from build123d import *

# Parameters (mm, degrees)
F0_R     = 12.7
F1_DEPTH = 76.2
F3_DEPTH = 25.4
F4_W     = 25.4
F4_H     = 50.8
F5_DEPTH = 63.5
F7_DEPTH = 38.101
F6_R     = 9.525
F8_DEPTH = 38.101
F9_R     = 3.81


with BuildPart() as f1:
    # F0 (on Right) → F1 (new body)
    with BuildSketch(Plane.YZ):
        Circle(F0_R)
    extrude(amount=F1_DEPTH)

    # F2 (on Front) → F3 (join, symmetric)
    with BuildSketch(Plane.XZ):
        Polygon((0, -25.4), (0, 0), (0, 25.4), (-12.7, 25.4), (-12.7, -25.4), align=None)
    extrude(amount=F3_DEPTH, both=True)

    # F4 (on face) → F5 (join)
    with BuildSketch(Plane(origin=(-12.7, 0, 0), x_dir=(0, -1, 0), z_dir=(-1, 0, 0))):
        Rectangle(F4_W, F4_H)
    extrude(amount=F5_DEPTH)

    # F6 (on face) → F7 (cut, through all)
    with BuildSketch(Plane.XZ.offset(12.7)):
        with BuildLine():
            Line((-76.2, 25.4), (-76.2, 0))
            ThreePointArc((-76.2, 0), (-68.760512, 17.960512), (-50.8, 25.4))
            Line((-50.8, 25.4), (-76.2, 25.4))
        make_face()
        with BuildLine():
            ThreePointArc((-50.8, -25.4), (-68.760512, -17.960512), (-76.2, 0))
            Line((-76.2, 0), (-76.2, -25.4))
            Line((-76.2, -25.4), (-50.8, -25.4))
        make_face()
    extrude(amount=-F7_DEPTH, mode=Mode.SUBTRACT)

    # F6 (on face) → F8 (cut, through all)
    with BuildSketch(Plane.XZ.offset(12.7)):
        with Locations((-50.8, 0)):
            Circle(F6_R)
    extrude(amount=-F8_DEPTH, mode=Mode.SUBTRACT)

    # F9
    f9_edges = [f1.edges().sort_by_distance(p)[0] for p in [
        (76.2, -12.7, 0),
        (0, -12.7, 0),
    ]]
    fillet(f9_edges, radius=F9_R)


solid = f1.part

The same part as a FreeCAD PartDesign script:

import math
import FreeCAD as App
import Part
import Sketcher
Q = App.Units.Quantity


def edges_at(feature, points):
    """Names of the edges that pass closest to the given points."""
    edges = feature.Shape.Edges
    near = lambda p: min(range(len(edges)), key=lambda i: edges[i].distToShape(Part.Vertex(*p))[0])
    return sorted({f"Edge{near(p) + 1}" for p in points})


def add_polygon(sketch, points):
    """Adds a closed chain of lines whose ends are joined by coincident constraints."""
    first, n = sketch.GeometryCount, len(points)
    for a, b in zip(points, points[1:] + points[:1]):
        sketch.addGeometry(Part.LineSegment(App.Vector(*a, 0), App.Vector(*b, 0)), False)
    for i in range(n):
        sketch.addConstraint(Sketcher.Constraint("Coincident", first + i, 2, first + (i + 1) % n, 1))

doc = App.newDocument("Part")
body = doc.addObject("PartDesign::Body", "Body")

sketch1 = body.newObject("Sketcher::SketchObject", "Sketch")
sketch1.AttachmentSupport = (doc.getObject("YZ_Plane"), [""])
sketch1.MapMode = "FlatFace"
sketch1.addGeometry(Part.Circle(App.Vector(0, 0, 0), App.Vector(0, 0, 1), 12.7), False)
sketch1.addConstraint([
    Sketcher.Constraint("Coincident", 0, 3, -1, 1),
    Sketcher.Constraint("Diameter", 0, Q("1 in")),
])
pad1 = body.newObject("PartDesign::Pad", "Pad")
pad1.Profile = sketch1
pad1.Length = Q("3 in")

sketch2 = body.newObject("Sketcher::SketchObject", "Sketch001")
sketch2.AttachmentSupport = (doc.getObject("XZ_Plane"), [""])
sketch2.MapMode = "FlatFace"
add_polygon(sketch2, [(0, -25.4), (0, 25.4), (-12.7, 25.4), (-12.7, -25.4)])
sketch2.addConstraint([
    Sketcher.Constraint("Vertical", 0),
    Sketcher.Constraint("Horizontal", 1),
    Sketcher.Constraint("Vertical", 2),
    Sketcher.Constraint("Horizontal", 3),
    Sketcher.Constraint("Symmetric", 0, 2, 3, 2, -1, 1),
    Sketcher.Constraint("DistanceY", 0, 1, 0, 2, Q("2 in")),
    Sketcher.Constraint("DistanceX", 1, 2, 1, 1, Q("0.5 in")),
])
pad2 = body.newObject("PartDesign::Pad", "Pad001")
pad2.Profile = sketch2
pad2.Length = Q("2 in")
pad2.Midplane = True

sketch3 = body.newObject("Sketcher::SketchObject", "Sketch002")
sketch3.AttachmentSupport = (doc.getObject("YZ_Plane"), [""])
sketch3.MapMode = "FlatFace"
sketch3.AttachmentOffset = App.Placement(App.Vector(0, 0, -0.5 * 25.4), App.Rotation())
add_polygon(sketch3, [(12.7, 25.4), (12.7, -25.4), (-12.7, -25.4), (-12.7, 25.4)])
sketch3.addConstraint([
    Sketcher.Constraint("Vertical", 0),
    Sketcher.Constraint("Horizontal", 1),
    Sketcher.Constraint("Vertical", 2),
    Sketcher.Constraint("Horizontal", 3),
    Sketcher.Constraint("Symmetric", 0, 2, 2, 2, -1, 1),
    Sketcher.Constraint("DistanceX", 1, 2, 1, 1, Q("1 in")),
    Sketcher.Constraint("DistanceY", 0, 2, 0, 1, Q("2 in")),
])
pad3 = body.newObject("PartDesign::Pad", "Pad002")
pad3.Profile = sketch3
pad3.Length = Q("2.5 in")
pad3.Reversed = True

sketch4 = body.newObject("Sketcher::SketchObject", "Sketch003")
sketch4.AttachmentSupport = (doc.getObject("XZ_Plane"), [""])
sketch4.MapMode = "FlatFace"
sketch4.AttachmentOffset = App.Placement(App.Vector(0, 0, 0.5 * 25.4), App.Rotation())
sketch4.addGeometry([
    Part.LineSegment(App.Vector(-76.2, 25.4, 0), App.Vector(-76.2, 0, 0)),
    Part.ArcOfCircle(Part.Circle(App.Vector(-50.799999, -0.000001, 0), App.Vector(0, 0, 1), 25.400001), math.radians(90.000002), math.radians(179.999998)),
    Part.LineSegment(App.Vector(-50.8, 25.4, 0), App.Vector(-76.2, 25.4, 0)),
    Part.ArcOfCircle(Part.Circle(App.Vector(-50.799999, 0.000001, 0), App.Vector(0, 0, 1), 25.400001), math.radians(-179.999998), math.radians(-90.000002)),
    Part.LineSegment(App.Vector(-76.2, 0, 0), App.Vector(-76.2, -25.4, 0)),
    Part.LineSegment(App.Vector(-76.2, -25.4, 0), App.Vector(-50.8, -25.4, 0)),
], False)
sketch4.addConstraint([
    Sketcher.Constraint("Tangent", 0, 2, 1, 2),
    Sketcher.Constraint("Tangent", 1, 1, 2, 1),
    Sketcher.Constraint("Coincident", 2, 2, 0, 1),
    Sketcher.Constraint("Tangent", 3, 1, 4, 1),
    Sketcher.Constraint("Coincident", 4, 2, 5, 1),
    Sketcher.Constraint("Tangent", 5, 2, 3, 2),
    Sketcher.Constraint("Vertical", 0),
    Sketcher.Constraint("Horizontal", 2),
    Sketcher.Constraint("Vertical", 4),
    Sketcher.Constraint("Horizontal", 5),
    Sketcher.Constraint("Coincident", 3, 3, 1, 3),
    Sketcher.Constraint("Equal", 1, 3),
    Sketcher.Constraint("PointOnObject", 1, 3, -1),
    Sketcher.Constraint("Radius", 1, Q("1 in")),
    Sketcher.Constraint("DistanceX", 1, 3, -1, 1, Q("2 in")),
])
pocket1 = body.newObject("PartDesign::Pocket", "Pocket")
pocket1.Profile = sketch4
pocket1.Type = "ThroughAll"

sketch5 = body.newObject("Sketcher::SketchObject", "Sketch004")
sketch5.AttachmentSupport = (doc.getObject("XZ_Plane"), [""])
sketch5.MapMode = "FlatFace"
sketch5.AttachmentOffset = App.Placement(App.Vector(0, 0, 0.5 * 25.4), App.Rotation())
sketch5.addGeometry(Part.Circle(App.Vector(-50.8, 0, 0), App.Vector(0, 0, 1), 9.525), False)
sketch5.addConstraint([
    Sketcher.Constraint("PointOnObject", 0, 3, -1),
    Sketcher.Constraint("Diameter", 0, Q("0.75 in")),
    Sketcher.Constraint("DistanceX", 0, 3, -1, 1, Q("2 in")),
])
pocket2 = body.newObject("PartDesign::Pocket", "Pocket001")
pocket2.Profile = sketch5
pocket2.Type = "ThroughAll"
doc.recompute()

fillet = body.newObject("PartDesign::Fillet", "Fillet")
fillet.Base = (pocket2, edges_at(pocket2, [(76.2, -12.7, 0), (0, -12.7, 0)]))
fillet.Radius = Q("0.15 in")

doc.recompute()
